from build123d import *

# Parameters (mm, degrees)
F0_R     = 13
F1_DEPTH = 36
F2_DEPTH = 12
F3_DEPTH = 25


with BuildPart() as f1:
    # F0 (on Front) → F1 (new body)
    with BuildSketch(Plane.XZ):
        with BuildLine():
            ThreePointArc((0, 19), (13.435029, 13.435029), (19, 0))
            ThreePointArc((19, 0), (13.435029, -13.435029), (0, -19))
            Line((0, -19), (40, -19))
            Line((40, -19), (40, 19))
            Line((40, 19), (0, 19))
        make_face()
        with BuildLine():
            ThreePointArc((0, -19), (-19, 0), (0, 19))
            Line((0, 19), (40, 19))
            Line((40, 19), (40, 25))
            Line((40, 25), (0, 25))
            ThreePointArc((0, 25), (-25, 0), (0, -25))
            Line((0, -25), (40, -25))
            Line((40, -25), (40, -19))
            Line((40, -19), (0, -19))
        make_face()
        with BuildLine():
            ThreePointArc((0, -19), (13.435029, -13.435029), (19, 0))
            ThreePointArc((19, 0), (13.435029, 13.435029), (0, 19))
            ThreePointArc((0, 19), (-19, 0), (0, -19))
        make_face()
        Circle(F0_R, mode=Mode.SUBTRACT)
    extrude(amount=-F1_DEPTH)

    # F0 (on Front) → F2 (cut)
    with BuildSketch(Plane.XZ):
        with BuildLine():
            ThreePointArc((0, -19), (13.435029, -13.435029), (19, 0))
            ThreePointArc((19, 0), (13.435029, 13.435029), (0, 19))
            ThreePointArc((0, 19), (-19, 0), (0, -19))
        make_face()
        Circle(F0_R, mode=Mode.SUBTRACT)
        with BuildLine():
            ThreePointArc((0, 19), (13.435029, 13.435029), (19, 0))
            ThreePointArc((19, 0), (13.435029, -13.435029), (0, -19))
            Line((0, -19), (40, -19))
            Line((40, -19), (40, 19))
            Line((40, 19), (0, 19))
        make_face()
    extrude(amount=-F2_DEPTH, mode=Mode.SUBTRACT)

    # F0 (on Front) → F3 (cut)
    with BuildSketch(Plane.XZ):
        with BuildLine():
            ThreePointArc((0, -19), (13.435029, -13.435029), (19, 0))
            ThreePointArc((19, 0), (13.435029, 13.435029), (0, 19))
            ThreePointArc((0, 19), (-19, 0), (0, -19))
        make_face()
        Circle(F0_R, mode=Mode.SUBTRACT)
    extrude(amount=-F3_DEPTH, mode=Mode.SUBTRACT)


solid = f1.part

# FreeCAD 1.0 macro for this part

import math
import FreeCAD as App
import Part
import Sketcher
from FreeCAD import Vector

doc = App.newDocument("Part")
body = doc.addObject("PartDesign::Body", "Body")

sketch1 = body.newObject("Sketcher::SketchObject", "Sketch")
sketch1.AttachmentSupport = (doc.getObject("XZ_Plane"), [""])
sketch1.MapMode = "FlatFace"
sketch1.addGeometry(Part.LineSegment(Vector(40, 25, 0), Vector(0, 25, 0)), False)
sketch1.addGeometry(Part.ArcOfCircle(Part.Circle(Vector(0, 0, 0), Vector(0, 0, 1), 25), math.radians(90), math.radians(270)), False)
sketch1.addGeometry(Part.LineSegment(Vector(0, -25, 0), Vector(40, -25, 0)), False)
sketch1.addGeometry(Part.LineSegment(Vector(40, -25, 0), Vector(40, 25, 0)), False)
sketch1.addGeometry(Part.Circle(Vector(0, 0, 0), Vector(0, 0, 1), 13), False)
sketch1.addConstraint(Sketcher.Constraint("Tangent", 0, 2, 1, 1))
sketch1.addConstraint(Sketcher.Constraint("Tangent", 1, 2, 2, 1))
sketch1.addConstraint(Sketcher.Constraint("Coincident", 2, 2, 3, 1))
sketch1.addConstraint(Sketcher.Constraint("Coincident", 3, 2, 0, 1))
sketch1.addConstraint(Sketcher.Constraint("Horizontal", 0))
sketch1.addConstraint(Sketcher.Constraint("Horizontal", 2))
sketch1.addConstraint(Sketcher.Constraint("Vertical", 3))
sketch1.addConstraint(Sketcher.Constraint("Coincident", 1, 3, -1, 1))
sketch1.addConstraint(Sketcher.Constraint("Coincident", 4, 3, -1, 1))
sketch1.addConstraint(Sketcher.Constraint("Diameter", 4, 26.0))
sketch1.addConstraint(Sketcher.Constraint("Radius", 1, 25.0))
sketch1.addConstraint(Sketcher.Constraint("DistanceX", 0, 2, 0, 1, 40.0))
pad1 = body.newObject("PartDesign::Pad", "Pad")
pad1.Profile = sketch1
pad1.Length = 36
pad1.Reversed = True

sketch2 = body.newObject("Sketcher::SketchObject", "Sketch001")
sketch2.AttachmentSupport = (doc.getObject("XZ_Plane"), [""])
sketch2.MapMode = "FlatFace"
sketch2.addGeometry(Part.ArcOfCircle(Part.Circle(Vector(0, 0, 0), Vector(0, 0, 1), 19), math.radians(90), math.radians(270)), False)
sketch2.addGeometry(Part.LineSegment(Vector(0, -19, 0), Vector(40, -19, 0)), False)
sketch2.addGeometry(Part.LineSegment(Vector(40, -19, 0), Vector(40, 19, 0)), False)
sketch2.addGeometry(Part.LineSegment(Vector(40, 19, 0), Vector(0, 19, 0)), False)
sketch2.addGeometry(Part.Circle(Vector(0, 0, 0), Vector(0, 0, 1), 13), False)
sketch2.addConstraint(Sketcher.Constraint("Tangent", 0, 2, 1, 1))
sketch2.addConstraint(Sketcher.Constraint("Coincident", 1, 2, 2, 1))
sketch2.addConstraint(Sketcher.Constraint("Coincident", 2, 2, 3, 1))
sketch2.addConstraint(Sketcher.Constraint("Tangent", 3, 2, 0, 1))
sketch2.addConstraint(Sketcher.Constraint("Horizontal", 1))
sketch2.addConstraint(Sketcher.Constraint("Vertical", 2))
sketch2.addConstraint(Sketcher.Constraint("Horizontal", 3))
sketch2.addConstraint(Sketcher.Constraint("Coincident", 0, 3, -1, 1))
sketch2.addConstraint(Sketcher.Constraint("Coincident", 4, 3, -1, 1))
sketch2.addConstraint(Sketcher.Constraint("Diameter", 4, 26.0))
sketch2.addConstraint(Sketcher.Constraint("Radius", 0, 19.0))
sketch2.addConstraint(Sketcher.Constraint("DistanceX", 1, 1, 1, 2, 40.0))
pocket1 = body.newObject("PartDesign::Pocket", "Pocket")
pocket1.Profile = sketch2
pocket1.Length = 12

sketch3 = body.newObject("Sketcher::SketchObject", "Sketch002")
sketch3.AttachmentSupport = (doc.getObject("XZ_Plane"), [""])
sketch3.MapMode = "FlatFace"
sketch3.addGeometry(Part.ArcOfCircle(Part.Circle(Vector(0, 0, 0), Vector(0, 0, 1), 19), math.radians(-90), math.radians(0)), False)
sketch3.addGeometry(Part.ArcOfCircle(Part.Circle(Vector(0, 0, 0), Vector(0, 0, 1), 19), math.radians(0), math.radians(90)), False)
sketch3.addGeometry(Part.ArcOfCircle(Part.Circle(Vector(0, 0, 0), Vector(0, 0, 1), 19), math.radians(90), math.radians(270)), False)
sketch3.addGeometry(Part.Circle(Vector(0, 0, 0), Vector(0, 0, 1), 13), False)
sketch3.addConstraint(Sketcher.Constraint("Tangent", 0, 2, 1, 1))
sketch3.addConstraint(Sketcher.Constraint("Tangent", 1, 2, 2, 1))
sketch3.addConstraint(Sketcher.Constraint("Tangent", 2, 2, 0, 1))
sketch3.addConstraint(Sketcher.Constraint("Coincident", 0, 3, -1, 1))
sketch3.addConstraint(Sketcher.Constraint("Coincident", 3, 3, -1, 1))
sketch3.addConstraint(Sketcher.Constraint("PointOnObject", 0, 2, -1))
sketch3.addConstraint(Sketcher.Constraint("PointOnObject", 1, 2, -2))
sketch3.addConstraint(Sketcher.Constraint("PointOnObject", 2, 2, -2))
sketch3.addConstraint(Sketcher.Constraint("Diameter", 3, 26.0))
sketch3.addConstraint(Sketcher.Constraint("Radius", 0, 18.999999))
pocket2 = body.newObject("PartDesign::Pocket", "Pocket001")
pocket2.Profile = sketch3
pocket2.Length = 25

doc.recompute()
